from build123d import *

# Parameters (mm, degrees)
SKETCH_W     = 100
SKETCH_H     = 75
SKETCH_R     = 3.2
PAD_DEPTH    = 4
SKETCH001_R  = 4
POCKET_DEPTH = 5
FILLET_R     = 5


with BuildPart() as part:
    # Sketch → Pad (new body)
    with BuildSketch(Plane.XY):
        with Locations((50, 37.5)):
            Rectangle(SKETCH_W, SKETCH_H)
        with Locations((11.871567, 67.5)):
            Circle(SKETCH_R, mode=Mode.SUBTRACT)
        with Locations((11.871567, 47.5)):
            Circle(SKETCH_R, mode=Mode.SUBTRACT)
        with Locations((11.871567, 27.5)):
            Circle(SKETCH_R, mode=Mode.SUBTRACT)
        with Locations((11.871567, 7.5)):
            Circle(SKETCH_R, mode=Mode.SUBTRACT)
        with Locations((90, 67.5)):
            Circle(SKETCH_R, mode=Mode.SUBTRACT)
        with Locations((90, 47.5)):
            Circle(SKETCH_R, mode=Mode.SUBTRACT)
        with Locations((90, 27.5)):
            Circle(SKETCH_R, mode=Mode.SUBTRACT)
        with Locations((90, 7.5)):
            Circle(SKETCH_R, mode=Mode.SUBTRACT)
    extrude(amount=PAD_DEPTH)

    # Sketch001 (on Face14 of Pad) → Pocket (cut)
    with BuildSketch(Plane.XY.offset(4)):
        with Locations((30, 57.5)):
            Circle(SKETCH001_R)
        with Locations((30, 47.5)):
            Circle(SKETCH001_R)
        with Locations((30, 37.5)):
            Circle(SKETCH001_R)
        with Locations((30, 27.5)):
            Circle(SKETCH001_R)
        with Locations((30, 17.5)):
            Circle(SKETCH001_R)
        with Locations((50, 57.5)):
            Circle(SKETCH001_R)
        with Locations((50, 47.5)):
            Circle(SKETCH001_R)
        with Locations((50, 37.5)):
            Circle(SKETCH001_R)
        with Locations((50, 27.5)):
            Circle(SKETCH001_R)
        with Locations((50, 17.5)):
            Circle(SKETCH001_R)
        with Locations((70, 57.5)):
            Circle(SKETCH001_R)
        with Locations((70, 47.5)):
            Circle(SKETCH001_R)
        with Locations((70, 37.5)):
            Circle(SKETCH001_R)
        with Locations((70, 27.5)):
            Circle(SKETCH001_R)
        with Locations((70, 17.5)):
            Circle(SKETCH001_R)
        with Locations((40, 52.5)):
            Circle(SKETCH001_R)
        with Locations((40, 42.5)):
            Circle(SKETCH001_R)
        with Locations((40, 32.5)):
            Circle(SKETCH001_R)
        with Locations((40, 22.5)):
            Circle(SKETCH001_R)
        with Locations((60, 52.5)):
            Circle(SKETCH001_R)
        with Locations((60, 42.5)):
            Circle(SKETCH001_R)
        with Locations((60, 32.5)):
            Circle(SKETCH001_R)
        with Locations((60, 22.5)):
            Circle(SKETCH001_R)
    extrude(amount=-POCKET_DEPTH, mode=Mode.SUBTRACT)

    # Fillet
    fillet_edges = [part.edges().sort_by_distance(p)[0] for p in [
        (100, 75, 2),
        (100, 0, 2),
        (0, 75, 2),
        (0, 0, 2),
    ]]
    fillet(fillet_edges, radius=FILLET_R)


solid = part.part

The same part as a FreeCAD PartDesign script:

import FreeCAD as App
import Part
import Sketcher

V = App.Vector


def edges_at(feature, points):
    """Names of the edges that pass closest to the given points."""
    edges = feature.Shape.Edges
    near = lambda p: min(range(len(edges)), key=lambda i: edges[i].distToShape(Part.Vertex(*p))[0])
    return sorted({f"Edge{near(p) + 1}" for p in points})

doc = App.newDocument("Part")
params = doc.addObject("Spreadsheet::Sheet", "Params")
for row, (alias, value) in enumerate([
    ("sketch1_diameter", "6.4 mm"),
    ("sketch1_width", "100 mm"),
    ("sketch1_height", "75 mm"),
    ("pad1_length", "4 mm"),
    ("sketch2_diameter", "8 mm"),
    ("pocket1_length", "5 mm"),
    ("fillet_radius", "5 mm"),
], start=1):
    params.set(f"A{row}", alias)
    params.set(f"B{row}", "=" + value)
    params.setAlias(f"B{row}", alias)

body = doc.addObject("PartDesign::Body", "Body")

# Sketch on XY plane
sketch1 = body.newObject("Sketcher::SketchObject", "Sketch")
sketch1.AttachmentSupport = (doc.getObject("XY_Plane"), [""])
sketch1.MapMode = "FlatFace"
sketch1.addGeometry([
    Part.LineSegment(V(0, 75, 0), V(0, 0, 0)),  # 0
    Part.LineSegment(V(0, 0, 0), V(100, 0, 0)),  # 1
    Part.LineSegment(V(100, 0, 0), V(100, 75, 0)),  # 2
    Part.LineSegment(V(100, 75, 0), V(0, 75, 0)),  # 3
    Part.Circle(V(11.9, 7.5, 0), V(0, 0, 1), 3.2),  # 4
    Part.Circle(V(11.9, 27.5, 0), V(0, 0, 1), 3.2),  # 5
    Part.Circle(V(90, 7.5, 0), V(0, 0, 1), 3.2),  # 6
    Part.Circle(V(90, 27.5, 0), V(0, 0, 1), 3.2),  # 7
    Part.Circle(V(11.9, 47.5, 0), V(0, 0, 1), 3.2),  # 8
    Part.Circle(V(11.9, 67.5, 0), V(0, 0, 1), 3.2),  # 9
    Part.Circle(V(90, 47.5, 0), V(0, 0, 1), 3.2),  # 10
    Part.Circle(V(90, 67.5, 0), V(0, 0, 1), 3.2),  # 11
], False)
sketch1.addConstraint([
    Sketcher.Constraint("Coincident", 0, 2, 1, 1),
    Sketcher.Constraint("Coincident", 1, 2, 2, 1),
    Sketcher.Constraint("Coincident", 2, 2, 3, 1),
    Sketcher.Constraint("Coincident", 3, 2, 0, 1),
    Sketcher.Constraint("Vertical", 0),
    Sketcher.Constraint("Horizontal", 1),
    Sketcher.Constraint("Vertical", 2),
    Sketcher.Constraint("Horizontal", 3),
    Sketcher.Constraint("Coincident", 0, 2, -1, 1),
    Sketcher.Constraint("Equal", 4, 5),
    Sketcher.Constraint("Equal", 5, 6),
    Sketcher.Constraint("Equal", 6, 7),
    Sketcher.Constraint("Equal", 7, 8),
    Sketcher.Constraint("Equal", 8, 9),
    Sketcher.Constraint("Equal", 9, 10),
    Sketcher.Constraint("Equal", 10, 11),
    Sketcher.Constraint("Horizontal", 4, 3, 6, 3),
    Sketcher.Constraint("Horizontal", 5, 3, 7, 3),
    Sketcher.Constraint("Horizontal", 8, 3, 10, 3),
    Sketcher.Constraint("Horizontal", 9, 3, 11, 3),
    Sketcher.Constraint("Vertical", 4, 3, 5, 3),
    Sketcher.Constraint("Vertical", 6, 3, 7, 3),
    Sketcher.Constraint("Vertical", 5, 3, 8, 3),
    Sketcher.Constraint("Vertical", 8, 3, 9, 3),
    Sketcher.Constraint("Vertical", 7, 3, 10, 3),
    Sketcher.Constraint("Vertical", 10, 3, 11, 3),
    Sketcher.Constraint("Diameter", 4, 6.4),
    Sketcher.Constraint("DistanceX", 1, 1, 1, 2, 100.0),
    Sketcher.Constraint("DistanceY", 0, 2, 0, 1, 75.0),
    Sketcher.Constraint("DistanceX", -1, 1, 6, 3, 90.0),
    Sketcher.Constraint("DistanceY", 4, 3, 5, 3, 20.0),
    Sketcher.Constraint("DistanceY", 5, 3, 8, 3, 20.0),
    Sketcher.Constraint("DistanceY", 8, 3, 9, 3, 20.0),
    Sketcher.Constraint("DistanceY", -1, 1, 4, 3, 7.5),
    Sketcher.Constraint("DistanceX", -1, 1, 4, 3, 11.871567),
])
sketch1.setExpression("Constraints[26]", "Params.sketch1_diameter")
sketch1.setExpression("Constraints[27]", "Params.sketch1_width")
sketch1.setExpression("Constraints[28]", "Params.sketch1_height")
pad1 = body.newObject("PartDesign::Pad", "Pad")
pad1.Profile = sketch1
pad1.setExpression("Length", "Params.pad1_length")

# Sketch on XY plane
sketch2 = body.newObject("Sketcher::SketchObject", "Sketch001")
sketch2.AttachmentSupport = (doc.getObject("XY_Plane"), [""])
sketch2.MapMode = "FlatFace"
sketch2.AttachmentOffset = App.Placement(V(0, 0, 4), App.Rotation())
sketch2.addGeometry([
    Part.Circle(V(30, 57.5, 0), V(0, 0, 1), 4),  # 0
    Part.Circle(V(30, 47.5, 0), V(0, 0, 1), 4),  # 1
    Part.Circle(V(30, 37.5, 0), V(0, 0, 1), 4),  # 2
    Part.Circle(V(30, 27.5, 0), V(0, 0, 1), 4),  # 3
    Part.Circle(V(30, 17.5, 0), V(0, 0, 1), 4),  # 4
    Part.Circle(V(50, 57.5, 0), V(0, 0, 1), 4),  # 5
    Part.Circle(V(50, 47.5, 0), V(0, 0, 1), 4),  # 6
    Part.Circle(V(50, 37.5, 0), V(0, 0, 1), 4),  # 7
    Part.Circle(V(50, 27.5, 0), V(0, 0, 1), 4),  # 8
    Part.Circle(V(50, 17.5, 0), V(0, 0, 1), 4),  # 9
    Part.Circle(V(70, 57.5, 0), V(0, 0, 1), 4),  # 10
    Part.Circle(V(70, 47.5, 0), V(0, 0, 1), 4),  # 11
    Part.Circle(V(70, 37.5, 0), V(0, 0, 1), 4),  # 12
    Part.Circle(V(70, 27.5, 0), V(0, 0, 1), 4),  # 13
    Part.Circle(V(70, 17.5, 0), V(0, 0, 1), 4),  # 14
    Part.Circle(V(40, 52.5, 0), V(0, 0, 1), 4),  # 15
    Part.Circle(V(40, 42.5, 0), V(0, 0, 1), 4),  # 16
    Part.Circle(V(40, 32.5, 0), V(0, 0, 1), 4),  # 17
    Part.Circle(V(40, 22.5, 0), V(0, 0, 1), 4),  # 18
    Part.Circle(V(60, 52.5, 0), V(0, 0, 1), 4),  # 19
    Part.Circle(V(60, 42.5, 0), V(0, 0, 1), 4),  # 20
    Part.Circle(V(60, 32.5, 0), V(0, 0, 1), 4),  # 21
    Part.Circle(V(60, 22.5, 0), V(0, 0, 1), 4),  # 22
], False)
sketch2.addConstraint([
    Sketcher.Constraint("Equal", 0, 1),
    Sketcher.Constraint("Equal", 1, 2),
    Sketcher.Constraint("Equal", 2, 3),
    Sketcher.Constraint("Equal", 3, 4),
    Sketcher.Constraint("Equal", 4, 5),
    Sketcher.Constraint("Equal", 5, 6),
    Sketcher.Constraint("Equal", 6, 7),
    Sketcher.Constraint("Equal", 7, 8),
    Sketcher.Constraint("Equal", 8, 9),
    Sketcher.Constraint("Equal", 9, 10),
    Sketcher.Constraint("Equal", 10, 11),
    Sketcher.Constraint("Equal", 11, 12),
    Sketcher.Constraint("Equal", 12, 13),
    Sketcher.Constraint("Equal", 13, 14),
    Sketcher.Constraint("Equal", 14, 15),
    Sketcher.Constraint("Equal", 15, 16),
    Sketcher.Constraint("Equal", 16, 17),
    Sketcher.Constraint("Equal", 17, 18),
    Sketcher.Constraint("Equal", 18, 19),
    Sketcher.Constraint("Equal", 19, 20),
    Sketcher.Constraint("Equal", 20, 21),
    Sketcher.Constraint("Equal", 21, 22),
    Sketcher.Constraint("Horizontal", 0, 3, 5, 3),
    Sketcher.Constraint("Horizontal", 1, 3, 6, 3),
    Sketcher.Constraint("Horizontal", 2, 3, 7, 3),
    Sketcher.Constraint("Horizontal", 3, 3, 8, 3),
    Sketcher.Constraint("Horizontal", 4, 3, 9, 3),
    Sketcher.Constraint("Horizontal", 5, 3, 10, 3),
    Sketcher.Constraint("Horizontal", 6, 3, 11, 3),
    Sketcher.Constraint("Horizontal", 7, 3, 12, 3),
    Sketcher.Constraint("Horizontal", 8, 3, 13, 3),
    Sketcher.Constraint("Horizontal", 9, 3, 14, 3),
    Sketcher.Constraint("Horizontal", 15, 3, 19, 3),
    Sketcher.Constraint("Horizontal", 16, 3, 20, 3),
    Sketcher.Constraint("Horizontal", 17, 3, 21, 3),
    Sketcher.Constraint("Horizontal", 18, 3, 22, 3),
    Sketcher.Constraint("Vertical", 0, 3, 1, 3),
    Sketcher.Constraint("Vertical", 1, 3, 2, 3),
    Sketcher.Constraint("Vertical", 2, 3, 3, 3),
    Sketcher.Constraint("Vertical", 3, 3, 4, 3),
    Sketcher.Constraint("Vertical", 5, 3, 6, 3),
    Sketcher.Constraint("Vertical", 6, 3, 7, 3),
    Sketcher.Constraint("Vertical", 7, 3, 8, 3),
    Sketcher.Constraint("Vertical", 8, 3, 9, 3),
    Sketcher.Constraint("Vertical", 10, 3, 11, 3),
    Sketcher.Constraint("Vertical", 11, 3, 12, 3),
    Sketcher.Constraint("Vertical", 12, 3, 13, 3),
    Sketcher.Constraint("Vertical", 13, 3, 14, 3),
    Sketcher.Constraint("Vertical", 15, 3, 16, 3),
    Sketcher.Constraint("Vertical", 16, 3, 17, 3),
    Sketcher.Constraint("Vertical", 17, 3, 18, 3),
    Sketcher.Constraint("Vertical", 19, 3, 20, 3),
    Sketcher.Constraint("Vertical", 20, 3, 21, 3),
    Sketcher.Constraint("Vertical", 21, 3, 22, 3),
    Sketcher.Constraint("Diameter", 0, 8.0),
    Sketcher.Constraint("DistanceX", -1, 1, 0, 3, 30.0),
    Sketcher.Constraint("DistanceX", -1, 1, 5, 3, 50.0),
    Sketcher.Constraint("DistanceX", -1, 1, 10, 3, 70.0),
    Sketcher.Constraint("DistanceX", -1, 1, 15, 3, 40.0),
    Sketcher.Constraint("DistanceX", -1, 1, 19, 3, 60.0),
    Sketcher.Constraint("DistanceY", 1, 3, 0, 3, 10.0),
    Sketcher.Constraint("DistanceY", 2, 3, 1, 3, 10.0),
    Sketcher.Constraint("DistanceY", 3, 3, 2, 3, 10.0),
    Sketcher.Constraint("DistanceY", 4, 3, 3, 3, 10.0),
    Sketcher.Constraint("DistanceY", 15, 3, 0, 3, 5.0),
    Sketcher.Constraint("DistanceY", 16, 3, 15, 3, 10.0),
    Sketcher.Constraint("DistanceY", 17, 3, 16, 3, 10.0),
    Sketcher.Constraint("DistanceY", 18, 3, 17, 3, 10.0),
    Sketcher.Constraint("DistanceY", -1, 1, 0, 3, 57.5),
])
sketch2.setExpression("Constraints[54]", "Params.sketch2_diameter")
pocket1 = body.newObject("PartDesign::Pocket", "Pocket")
pocket1.Profile = sketch2
pocket1.setExpression("Length", "Params.pocket1_length")
doc.recompute()

fillet = body.newObject("PartDesign::Fillet", "Fillet")
fillet.Base = (pocket1, edges_at(pocket1, [
    (100, 75, 2),
    (100, 0, 2),
    (0, 75, 2),
    (0, 0, 2),
]))
fillet.setExpression("Radius", "Params.fillet_radius")

doc.recompute()
